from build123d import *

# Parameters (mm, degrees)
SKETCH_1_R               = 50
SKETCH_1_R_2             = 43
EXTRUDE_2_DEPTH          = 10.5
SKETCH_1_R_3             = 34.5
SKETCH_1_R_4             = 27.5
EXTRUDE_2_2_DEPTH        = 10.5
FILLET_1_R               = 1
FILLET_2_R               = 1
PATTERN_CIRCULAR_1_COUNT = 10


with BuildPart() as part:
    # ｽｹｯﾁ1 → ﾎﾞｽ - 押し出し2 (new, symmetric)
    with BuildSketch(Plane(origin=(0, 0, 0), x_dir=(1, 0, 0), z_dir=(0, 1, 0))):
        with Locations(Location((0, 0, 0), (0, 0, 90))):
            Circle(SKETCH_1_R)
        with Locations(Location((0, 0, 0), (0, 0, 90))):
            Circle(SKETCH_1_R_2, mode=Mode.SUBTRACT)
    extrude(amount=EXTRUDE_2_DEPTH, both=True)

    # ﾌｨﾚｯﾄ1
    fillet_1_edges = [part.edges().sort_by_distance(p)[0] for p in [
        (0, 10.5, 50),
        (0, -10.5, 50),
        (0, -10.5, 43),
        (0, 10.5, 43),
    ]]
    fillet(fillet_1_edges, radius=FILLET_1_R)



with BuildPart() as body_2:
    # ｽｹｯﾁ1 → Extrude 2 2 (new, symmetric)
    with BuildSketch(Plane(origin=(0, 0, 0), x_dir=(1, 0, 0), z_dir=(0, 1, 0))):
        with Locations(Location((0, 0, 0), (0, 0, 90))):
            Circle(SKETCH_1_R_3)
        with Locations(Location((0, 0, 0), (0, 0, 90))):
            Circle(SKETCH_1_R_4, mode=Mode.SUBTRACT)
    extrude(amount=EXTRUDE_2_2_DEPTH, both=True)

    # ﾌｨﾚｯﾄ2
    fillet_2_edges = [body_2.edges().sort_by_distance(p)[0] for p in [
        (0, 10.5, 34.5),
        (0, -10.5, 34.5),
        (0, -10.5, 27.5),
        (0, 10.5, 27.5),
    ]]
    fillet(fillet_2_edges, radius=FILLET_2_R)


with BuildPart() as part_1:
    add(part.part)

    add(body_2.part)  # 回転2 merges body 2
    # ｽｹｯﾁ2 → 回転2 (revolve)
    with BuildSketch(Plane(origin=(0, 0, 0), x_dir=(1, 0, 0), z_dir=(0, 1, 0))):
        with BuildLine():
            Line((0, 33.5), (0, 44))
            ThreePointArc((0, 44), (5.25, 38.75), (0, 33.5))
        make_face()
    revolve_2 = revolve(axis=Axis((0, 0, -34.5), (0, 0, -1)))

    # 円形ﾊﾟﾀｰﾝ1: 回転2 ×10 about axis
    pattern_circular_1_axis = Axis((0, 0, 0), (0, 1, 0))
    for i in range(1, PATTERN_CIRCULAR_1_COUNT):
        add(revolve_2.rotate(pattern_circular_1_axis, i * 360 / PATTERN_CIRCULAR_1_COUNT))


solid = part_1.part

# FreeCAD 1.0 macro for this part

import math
import FreeCAD as App
import Part
import Sketcher
Q = App.Units.Quantity


def edges_at(feature, points):
    """Names of the edges that pass closest to the given points."""
    edges = feature.Shape.Edges
    near = lambda p: min(range(len(edges)), key=lambda i: edges[i].distToShape(Part.Vertex(*p))[0])
    return sorted({f"Edge{near(p) + 1}" for p in points})

doc = App.newDocument("Part")
body = doc.addObject("PartDesign::Body", "Body")

# Sketch on XZ plane
sketch1 = body.newObject("Sketcher::SketchObject", "Sketch")
sketch1.AttachmentSupport = (doc.getObject("XZ_Plane"), [""])
sketch1.MapMode = "FlatFace"
sketch1.addGeometry([
    Part.Circle(App.Vector(0, 0, 0), App.Vector(0, 0, 1), 50),
    Part.Circle(App.Vector(0, 0, 0), App.Vector(0, 0, 1), 43),
], False)
sketch1.addConstraint([
    Sketcher.Constraint("Coincident", 0, 3, -1, 1),
    Sketcher.Constraint("Coincident", 1, 3, -1, 1),
    Sketcher.Constraint("Diameter", 0, Q("100 mm")),
    Sketcher.Constraint("Diameter", 1, Q("86 mm")),
])
pad1 = body.newObject("PartDesign::Pad", "Pad")
pad1.Profile = sketch1
pad1.Length = 21
pad1.Midplane = True
doc.recompute()

fillet = body.newObject("PartDesign::Fillet", "Fillet")
fillet.Base = (pad1, edges_at(pad1, [
    (0, 10.5, 50),
    (0, -10.5, 50),
    (0, -10.5, 43),
    (0, 10.5, 43),
]))
fillet.Radius = 1
body2 = doc.addObject("PartDesign::Body", "Body001")

# Sketch on XZ plane
sketch2 = body2.newObject("Sketcher::SketchObject", "Sketch001")
sketch2.AttachmentSupport = (doc.getObject("XZ_Plane001"), [""])
sketch2.MapMode = "FlatFace"
sketch2.addGeometry([
    Part.Circle(App.Vector(0, 0, 0), App.Vector(0, 0, 1), 34),
    Part.Circle(App.Vector(0, 0, 0), App.Vector(0, 0, 1), 28),
], False)
sketch2.addConstraint([
    Sketcher.Constraint("Coincident", 0, 3, -1, 1),
    Sketcher.Constraint("Coincident", 1, 3, -1, 1),
    Sketcher.Constraint("Diameter", 0, Q("69 mm")),
    Sketcher.Constraint("Diameter", 1, Q("55 mm")),
])
pad2 = body2.newObject("PartDesign::Pad", "Pad001")
pad2.Profile = sketch2
pad2.Length = 21
pad2.Midplane = True
doc.recompute()

fillet2 = body2.newObject("PartDesign::Fillet", "Fillet001")
fillet2.Base = (pad2, edges_at(pad2, [
    (0, 10.5, 34.5),
    (0, -10.5, 34.5),
    (0, -10.5, 27.5),
    (0, 10.5, 27.5),
]))
fillet2.Radius = 1
body.AllowCompound = True
doc.recompute()

boolean = body.newObject("PartDesign::Boolean", "Boolean")
boolean.Type = "Fuse"
boolean.addObjects([body2])

# Sketch on XZ plane
sketch3 = body.newObject("Sketcher::SketchObject", "Sketch002")
sketch3.AttachmentSupport = (doc.getObject("XZ_Plane"), [""])
sketch3.MapMode = "FlatFace"
sketch3.addGeometry([
    Part.LineSegment(App.Vector(0, -44, 0), App.Vector(0, -34, 0)),
    Part.ArcOfCircle(Part.Circle(App.Vector(0, -39, 0), App.Vector(0, 0, 1), 5), math.radians(-90), math.radians(90)),
], False)
sketch3.addConstraint([
    Sketcher.Constraint("Coincident", 0, 1, 1, 1),
    Sketcher.Constraint("Coincident", 1, 2, 0, 2),
    Sketcher.Constraint("Vertical", 0),
    Sketcher.Constraint("PointOnObject", 1, 3, -2),
    Sketcher.Constraint("PointOnObject", 0, 1, -2),
    Sketcher.Constraint("Radius", 1, Q("5.25 mm")),
    Sketcher.Constraint("DistanceY", 0, 1, -1, 1, Q("44 mm")),
])
revolution = body.newObject("PartDesign::Revolution", "Revolution")
revolution.Profile = sketch3
revolution.ReferenceAxis = (sketch3, ["V_Axis"])
revolution.Angle = 360
doc.recompute()

polarpattern = body.newObject("PartDesign::PolarPattern", "PolarPattern")
polarpattern.Originals = [revolution]
polarpattern.Axis = (doc.getObject("Y_Axis"), [""])
polarpattern.Angle = 360
polarpattern.Occurrences = 10
body.Tip = polarpattern

doc.recompute()
